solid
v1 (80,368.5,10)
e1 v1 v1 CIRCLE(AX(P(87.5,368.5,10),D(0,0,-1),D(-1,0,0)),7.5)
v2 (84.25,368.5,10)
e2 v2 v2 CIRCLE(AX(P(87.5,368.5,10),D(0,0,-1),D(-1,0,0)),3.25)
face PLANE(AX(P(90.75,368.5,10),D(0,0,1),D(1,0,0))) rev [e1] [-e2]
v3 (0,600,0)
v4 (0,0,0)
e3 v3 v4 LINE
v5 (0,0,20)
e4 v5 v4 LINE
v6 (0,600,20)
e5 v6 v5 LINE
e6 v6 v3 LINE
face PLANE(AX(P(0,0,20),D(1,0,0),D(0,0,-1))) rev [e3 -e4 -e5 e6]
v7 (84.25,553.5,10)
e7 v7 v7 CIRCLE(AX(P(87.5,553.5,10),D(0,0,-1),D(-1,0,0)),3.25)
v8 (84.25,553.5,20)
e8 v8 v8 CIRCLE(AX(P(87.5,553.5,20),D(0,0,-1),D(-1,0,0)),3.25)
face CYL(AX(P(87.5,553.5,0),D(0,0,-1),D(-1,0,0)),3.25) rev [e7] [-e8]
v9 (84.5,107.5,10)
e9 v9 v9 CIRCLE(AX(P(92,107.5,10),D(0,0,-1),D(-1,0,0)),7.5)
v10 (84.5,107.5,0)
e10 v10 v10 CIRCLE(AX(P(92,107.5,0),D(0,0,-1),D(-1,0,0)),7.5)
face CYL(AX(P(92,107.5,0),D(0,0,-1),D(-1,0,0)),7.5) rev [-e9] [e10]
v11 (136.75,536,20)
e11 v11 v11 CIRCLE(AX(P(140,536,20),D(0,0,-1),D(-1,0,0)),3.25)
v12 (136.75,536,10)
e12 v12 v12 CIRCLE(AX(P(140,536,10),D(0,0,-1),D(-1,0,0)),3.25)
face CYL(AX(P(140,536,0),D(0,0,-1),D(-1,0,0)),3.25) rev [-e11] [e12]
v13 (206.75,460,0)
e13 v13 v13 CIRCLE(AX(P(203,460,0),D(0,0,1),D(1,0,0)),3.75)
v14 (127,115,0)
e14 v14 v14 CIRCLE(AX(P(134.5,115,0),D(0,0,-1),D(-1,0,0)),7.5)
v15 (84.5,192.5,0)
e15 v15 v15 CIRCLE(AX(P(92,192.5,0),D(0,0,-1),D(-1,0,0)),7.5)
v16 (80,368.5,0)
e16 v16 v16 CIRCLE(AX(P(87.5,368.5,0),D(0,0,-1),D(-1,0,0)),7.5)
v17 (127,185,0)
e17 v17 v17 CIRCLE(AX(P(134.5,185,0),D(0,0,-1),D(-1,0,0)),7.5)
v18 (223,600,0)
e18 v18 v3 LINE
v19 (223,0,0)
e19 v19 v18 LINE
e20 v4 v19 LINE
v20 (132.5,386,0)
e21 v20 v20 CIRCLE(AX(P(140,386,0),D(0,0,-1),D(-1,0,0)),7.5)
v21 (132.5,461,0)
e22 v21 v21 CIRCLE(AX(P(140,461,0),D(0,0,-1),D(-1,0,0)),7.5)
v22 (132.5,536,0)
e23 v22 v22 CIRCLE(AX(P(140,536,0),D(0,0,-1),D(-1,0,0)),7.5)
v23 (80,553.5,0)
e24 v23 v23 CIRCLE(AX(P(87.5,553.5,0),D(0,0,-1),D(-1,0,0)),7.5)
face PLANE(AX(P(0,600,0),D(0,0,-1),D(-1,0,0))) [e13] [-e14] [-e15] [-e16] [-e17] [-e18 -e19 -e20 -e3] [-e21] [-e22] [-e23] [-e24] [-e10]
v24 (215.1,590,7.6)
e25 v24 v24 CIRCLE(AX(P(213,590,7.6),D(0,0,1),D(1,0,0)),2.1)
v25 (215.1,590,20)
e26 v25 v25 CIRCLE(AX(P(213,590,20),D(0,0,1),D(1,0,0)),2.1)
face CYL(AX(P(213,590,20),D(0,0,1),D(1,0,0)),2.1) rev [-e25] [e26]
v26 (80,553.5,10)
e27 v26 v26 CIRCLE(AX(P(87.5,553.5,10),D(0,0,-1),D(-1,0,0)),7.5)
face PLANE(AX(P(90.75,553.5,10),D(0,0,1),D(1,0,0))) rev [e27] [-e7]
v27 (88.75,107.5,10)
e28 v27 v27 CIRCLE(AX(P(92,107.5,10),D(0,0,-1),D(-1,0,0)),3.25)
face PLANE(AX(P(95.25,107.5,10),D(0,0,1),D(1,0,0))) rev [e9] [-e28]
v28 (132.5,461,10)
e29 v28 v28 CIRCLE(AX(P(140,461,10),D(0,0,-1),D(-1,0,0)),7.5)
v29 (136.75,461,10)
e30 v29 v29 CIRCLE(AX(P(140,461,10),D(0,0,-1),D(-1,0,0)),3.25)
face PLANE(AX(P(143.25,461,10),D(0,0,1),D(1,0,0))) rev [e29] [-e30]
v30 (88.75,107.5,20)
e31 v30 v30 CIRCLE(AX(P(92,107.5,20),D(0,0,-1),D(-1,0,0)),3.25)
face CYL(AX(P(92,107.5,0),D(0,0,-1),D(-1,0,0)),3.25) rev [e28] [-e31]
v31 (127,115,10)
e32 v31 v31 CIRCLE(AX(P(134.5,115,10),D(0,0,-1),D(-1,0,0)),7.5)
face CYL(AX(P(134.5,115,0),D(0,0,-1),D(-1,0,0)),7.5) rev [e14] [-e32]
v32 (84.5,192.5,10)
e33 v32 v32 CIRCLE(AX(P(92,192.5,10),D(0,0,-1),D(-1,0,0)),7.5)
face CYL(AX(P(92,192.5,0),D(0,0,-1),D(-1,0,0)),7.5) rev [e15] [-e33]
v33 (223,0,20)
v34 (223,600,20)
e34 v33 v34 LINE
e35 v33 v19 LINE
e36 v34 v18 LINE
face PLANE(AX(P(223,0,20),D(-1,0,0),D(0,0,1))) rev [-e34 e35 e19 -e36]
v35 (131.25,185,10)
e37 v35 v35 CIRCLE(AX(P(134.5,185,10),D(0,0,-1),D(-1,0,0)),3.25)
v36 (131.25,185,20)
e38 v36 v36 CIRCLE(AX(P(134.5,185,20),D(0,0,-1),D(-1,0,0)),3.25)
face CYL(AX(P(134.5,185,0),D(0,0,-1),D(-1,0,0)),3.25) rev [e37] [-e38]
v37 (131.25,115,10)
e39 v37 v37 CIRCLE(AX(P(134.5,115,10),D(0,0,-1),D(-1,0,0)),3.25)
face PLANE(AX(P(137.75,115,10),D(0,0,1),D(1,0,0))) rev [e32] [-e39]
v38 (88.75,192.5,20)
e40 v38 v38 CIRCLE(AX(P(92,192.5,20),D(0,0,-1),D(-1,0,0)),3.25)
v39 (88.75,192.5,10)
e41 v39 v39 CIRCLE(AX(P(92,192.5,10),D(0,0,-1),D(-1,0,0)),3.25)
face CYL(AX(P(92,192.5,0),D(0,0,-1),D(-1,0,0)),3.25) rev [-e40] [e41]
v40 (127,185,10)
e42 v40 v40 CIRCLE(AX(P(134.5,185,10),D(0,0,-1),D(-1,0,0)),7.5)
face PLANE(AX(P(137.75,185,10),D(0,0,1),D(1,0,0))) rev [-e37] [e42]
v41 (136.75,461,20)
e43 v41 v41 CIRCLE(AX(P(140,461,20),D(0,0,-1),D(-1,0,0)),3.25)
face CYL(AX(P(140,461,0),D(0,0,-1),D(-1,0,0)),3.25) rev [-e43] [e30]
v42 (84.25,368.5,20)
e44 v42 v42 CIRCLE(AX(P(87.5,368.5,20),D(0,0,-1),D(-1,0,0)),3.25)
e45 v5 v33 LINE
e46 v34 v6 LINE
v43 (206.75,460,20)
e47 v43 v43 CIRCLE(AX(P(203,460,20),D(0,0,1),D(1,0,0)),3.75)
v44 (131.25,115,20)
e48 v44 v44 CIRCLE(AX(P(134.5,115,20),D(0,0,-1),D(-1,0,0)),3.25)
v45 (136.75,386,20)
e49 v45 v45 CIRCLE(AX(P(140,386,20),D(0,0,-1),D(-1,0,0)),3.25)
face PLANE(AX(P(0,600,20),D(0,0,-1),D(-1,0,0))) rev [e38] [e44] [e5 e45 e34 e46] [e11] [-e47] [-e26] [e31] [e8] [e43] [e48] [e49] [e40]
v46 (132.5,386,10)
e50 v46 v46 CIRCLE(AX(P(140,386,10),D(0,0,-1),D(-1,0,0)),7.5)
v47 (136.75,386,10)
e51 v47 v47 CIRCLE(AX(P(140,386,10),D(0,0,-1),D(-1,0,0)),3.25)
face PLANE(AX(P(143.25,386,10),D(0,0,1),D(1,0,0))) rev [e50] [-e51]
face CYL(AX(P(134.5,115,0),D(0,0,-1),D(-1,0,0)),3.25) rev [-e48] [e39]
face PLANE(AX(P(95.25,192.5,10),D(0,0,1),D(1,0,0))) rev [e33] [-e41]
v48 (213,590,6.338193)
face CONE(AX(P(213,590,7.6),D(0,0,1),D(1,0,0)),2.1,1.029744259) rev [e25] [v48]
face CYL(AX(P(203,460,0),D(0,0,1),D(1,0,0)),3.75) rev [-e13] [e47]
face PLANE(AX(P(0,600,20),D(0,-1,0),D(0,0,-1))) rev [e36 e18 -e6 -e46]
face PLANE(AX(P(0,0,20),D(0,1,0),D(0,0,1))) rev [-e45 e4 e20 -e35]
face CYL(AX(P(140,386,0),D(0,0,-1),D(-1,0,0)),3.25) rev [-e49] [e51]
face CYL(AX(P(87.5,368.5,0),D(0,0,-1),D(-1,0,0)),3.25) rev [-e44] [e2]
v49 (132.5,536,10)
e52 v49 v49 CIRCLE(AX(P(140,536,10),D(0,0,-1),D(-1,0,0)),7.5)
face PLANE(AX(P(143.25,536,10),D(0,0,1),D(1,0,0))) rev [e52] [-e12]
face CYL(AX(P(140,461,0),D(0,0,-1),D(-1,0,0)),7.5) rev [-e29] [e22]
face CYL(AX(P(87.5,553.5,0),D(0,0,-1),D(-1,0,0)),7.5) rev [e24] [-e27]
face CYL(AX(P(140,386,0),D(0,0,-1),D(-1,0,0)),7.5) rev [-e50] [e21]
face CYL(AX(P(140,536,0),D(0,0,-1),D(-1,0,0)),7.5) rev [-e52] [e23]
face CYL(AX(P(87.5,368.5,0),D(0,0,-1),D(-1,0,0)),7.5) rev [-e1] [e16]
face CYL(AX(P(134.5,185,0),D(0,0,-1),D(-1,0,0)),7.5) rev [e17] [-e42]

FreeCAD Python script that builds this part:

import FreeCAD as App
import Part
import Sketcher

V = App.Vector
Q = App.Units.Quantity


def add_polygon(sketch, points):
    """Adds a closed chain of lines whose ends are joined by coincident constraints."""
    first, n = sketch.GeometryCount, len(points)
    for a, b in zip(points, points[1:] + points[:1]):
        sketch.addGeometry(Part.LineSegment(App.Vector(*a, 0), App.Vector(*b, 0)), False)
    for i in range(n):
        sketch.addConstraint(Sketcher.Constraint("Coincident", first + i, 2, first + (i + 1) % n, 1))

doc = App.newDocument("Part")
body = doc.addObject("PartDesign::Body", "Body")

# Sketch on XY plane
sketch1 = body.newObject("Sketcher::SketchObject", "Sketch")
sketch1.AttachmentSupport = (doc.getObject("XY_Plane"), [""])
sketch1.MapMode = "FlatFace"
add_polygon(sketch1, [(0, 600), (0, 0), (223, 0), (223, 600)])  # lines 0-3
sketch1.addConstraint(Sketcher.Constraint("Vertical", 0))
sketch1.addConstraint(Sketcher.Constraint("Horizontal", 1))
sketch1.addConstraint(Sketcher.Constraint("Vertical", 2))
sketch1.addConstraint(Sketcher.Constraint("Horizontal", 3))
sketch1.addConstraint(Sketcher.Constraint("Coincident", 0, 2, -1, 1))
sketch1.addConstraint(Sketcher.Constraint("DistanceX", 1, 1, 1, 2, Q("223 mm")))
sketch1.addConstraint(Sketcher.Constraint("DistanceY", 0, 2, 0, 1, Q("600 mm")))
pad1 = body.newObject("PartDesign::Pad", "Pad")
pad1.Profile = sketch1
pad1.Length = 20

# Sketch on XY plane
sketch2 = body.newObject("Sketcher::SketchObject", "Sketch001")
sketch2.AttachmentSupport = (doc.getObject("XY_Plane"), [""])
sketch2.MapMode = "FlatFace"
sketch2.addGeometry(Part.Circle(V(134.5, 115, 0), V(0, 0, 1), 3.2), False)
sketch2.addGeometry(Part.Circle(V(134.5, 185, 0), V(0, 0, 1), 3.2), False)
sketch2.addGeometry(Part.Circle(V(92, 107.5, 0), V(0, 0, 1), 3.2), False)
sketch2.addGeometry(Part.Circle(V(92, 192.5, 0), V(0, 0, 1), 3.2), False)
sketch2.addConstraint(Sketcher.Constraint("Equal", 0, 1))
sketch2.addConstraint(Sketcher.Constraint("Equal", 1, 2))
sketch2.addConstraint(Sketcher.Constraint("Equal", 2, 3))
sketch2.addConstraint(Sketcher.Constraint("Vertical", 0, 3, 1, 3))
sketch2.addConstraint(Sketcher.Constraint("Vertical", 2, 3, 3, 3))
sketch2.addConstraint(Sketcher.Constraint("Diameter", 0, Q("6.5 mm")))
sketch2.addConstraint(Sketcher.Constraint("DistanceY", -1, 1, 0, 3, Q("115 mm")))
sketch2.addConstraint(Sketcher.Constraint("DistanceY", -1, 1, 1, 3, Q("185 mm")))
sketch2.addConstraint(Sketcher.Constraint("DistanceX", -1, 1, 2, 3, Q("92 mm")))
sketch2.addConstraint(Sketcher.Constraint("DistanceY", 2, 3, 3, 3, Q("85 mm")))
sketch2.addConstraint(Sketcher.Constraint("DistanceX", -1, 1, 0, 3, Q("134.5 mm")))
sketch2.addConstraint(Sketcher.Constraint("DistanceY", -1, 1, 2, 3, Q("107.5 mm")))
doc.recompute()
hole = body.newObject("PartDesign::Hole", "Hole")
hole.Profile = sketch2
hole.ThreadType = "None"
hole.Diameter = 6.5
hole.DepthType = "ThroughAll"
hole.HoleCutType = "Counterbore"
hole.HoleCutDiameter = 15
hole.HoleCutDepth = 10
hole.Reversed = True

# Sketch on XY plane
sketch3 = body.newObject("Sketcher::SketchObject", "Sketch002")
sketch3.AttachmentSupport = (doc.getObject("XY_Plane"), [""])
sketch3.MapMode = "FlatFace"
sketch3.addGeometry(Part.Circle(V(87.5, 368.5, 0), V(0, 0, 1), 3.2), False)
sketch3.addGeometry(Part.Circle(V(87.5, 553.5, 0), V(0, 0, 1), 3.2), False)
sketch3.addGeometry(Part.Circle(V(140, 386, 0), V(0, 0, 1), 3.2), False)
sketch3.addGeometry(Part.Circle(V(140, 461, 0), V(0, 0, 1), 3.2), False)
sketch3.addGeometry(Part.Circle(V(140, 536, 0), V(0, 0, 1), 3.2), False)
sketch3.addConstraint(Sketcher.Constraint("Equal", 0, 1))
sketch3.addConstraint(Sketcher.Constraint("Equal", 1, 2))
sketch3.addConstraint(Sketcher.Constraint("Equal", 2, 3))
sketch3.addConstraint(Sketcher.Constraint("Equal", 3, 4))
sketch3.addConstraint(Sketcher.Constraint("Vertical", 0, 3, 1, 3))
sketch3.addConstraint(Sketcher.Constraint("Vertical", 2, 3, 3, 3))
sketch3.addConstraint(Sketcher.Constraint("Vertical", 3, 3, 4, 3))
sketch3.addConstraint(Sketcher.Constraint("Diameter", 0, Q("6.5 mm")))
sketch3.addConstraint(Sketcher.Constraint("DistanceX", -1, 1, 2, 3, Q("140 mm")))
sketch3.addConstraint(Sketcher.Constraint("DistanceY", -1, 1, 2, 3, Q("386 mm")))
sketch3.addConstraint(Sketcher.Constraint("DistanceY", -1, 1, 3, 3, Q("461 mm")))
sketch3.addConstraint(Sketcher.Constraint("DistanceY", -1, 1, 4, 3, Q("536 mm")))
sketch3.addConstraint(Sketcher.Constraint("DistanceY", 0, 3, 1, 3, Q("185 mm")))
sketch3.addConstraint(Sketcher.Constraint("DistanceX", -1, 1, 0, 3, Q("87.5 mm")))
sketch3.addConstraint(Sketcher.Constraint("DistanceY", -1, 1, 0, 3, Q("368.5 mm")))
doc.recompute()
hole2 = body.newObject("PartDesign::Hole", "Hole001")
hole2.Profile = sketch3
hole2.ThreadType = "None"
hole2.Diameter = 6.5
hole2.DepthType = "ThroughAll"
hole2.HoleCutType = "Counterbore"
hole2.HoleCutDiameter = 15
hole2.HoleCutDepth = 10
hole2.Reversed = True

# Sketch on XY plane
sketch4 = body.newObject("Sketcher::SketchObject", "Sketch003")
sketch4.AttachmentSupport = (doc.getObject("XY_Plane"), [""])
sketch4.MapMode = "FlatFace"
sketch4.AttachmentOffset = App.Placement(V(0, 0, 20), App.Rotation())
sketch4.addGeometry(Part.Circle(V(203, 460, 0), V(0, 0, 1), 3.8), False)
sketch4.addConstraint(Sketcher.Constraint("Diameter", 0, Q("7.5 mm")))
sketch4.addConstraint(Sketcher.Constraint("DistanceX", -1, 1, 0, 3, Q("203 mm")))
sketch4.addConstraint(Sketcher.Constraint("DistanceY", -1, 1, 0, 3, Q("460 mm")))
pocket1 = body.newObject("PartDesign::Pocket", "Pocket")
pocket1.Profile = sketch4
pocket1.Type = "ThroughAll"

# Sketch on XY plane
sketch5 = body.newObject("Sketcher::SketchObject", "Sketch004")
sketch5.AttachmentSupport = (doc.getObject("XY_Plane"), [""])
sketch5.MapMode = "FlatFace"
sketch5.AttachmentOffset = App.Placement(V(0, 0, 20), App.Rotation())
sketch5.addGeometry(Part.Circle(V(213, 590, 0), V(0, 0, 1), 2.1), False)
sketch5.addConstraint(Sketcher.Constraint("Diameter", 0, Q("4.2 mm")))
sketch5.addConstraint(Sketcher.Constraint("DistanceX", -1, 1, 0, 3, Q("213 mm")))
sketch5.addConstraint(Sketcher.Constraint("DistanceY", -1, 1, 0, 3, Q("590 mm")))
doc.recompute()
hole3 = body.newObject("PartDesign::Hole", "Hole002")
hole3.Profile = sketch5
hole3.ThreadType = "None"
hole3.Diameter = 4.2
hole3.DepthType = "Dimension"
hole3.Depth = 12.4
hole3.DrillPoint = "Angled"
hole3.DrillPointAngle = 118

doc.recompute()
